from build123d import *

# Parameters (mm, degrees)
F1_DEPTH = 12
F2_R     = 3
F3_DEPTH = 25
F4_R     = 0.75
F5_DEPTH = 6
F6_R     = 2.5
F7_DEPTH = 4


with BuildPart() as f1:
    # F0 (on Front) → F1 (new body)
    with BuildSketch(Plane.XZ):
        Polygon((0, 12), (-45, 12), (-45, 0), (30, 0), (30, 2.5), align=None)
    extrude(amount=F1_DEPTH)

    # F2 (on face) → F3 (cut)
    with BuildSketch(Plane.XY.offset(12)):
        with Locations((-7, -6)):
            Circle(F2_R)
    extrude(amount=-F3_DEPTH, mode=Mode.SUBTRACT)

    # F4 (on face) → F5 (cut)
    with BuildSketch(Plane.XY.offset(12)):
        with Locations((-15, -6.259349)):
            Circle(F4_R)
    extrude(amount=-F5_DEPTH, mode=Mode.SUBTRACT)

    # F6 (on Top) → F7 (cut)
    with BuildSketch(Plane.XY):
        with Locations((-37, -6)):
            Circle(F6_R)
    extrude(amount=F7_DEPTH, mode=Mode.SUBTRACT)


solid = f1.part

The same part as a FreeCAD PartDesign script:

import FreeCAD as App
import Part
import Sketcher
from FreeCAD import Vector
Q = App.Units.Quantity


def add_polygon(sketch, points):
    """Adds a closed chain of lines whose ends are joined by coincident constraints."""
    first, n = sketch.GeometryCount, len(points)
    for a, b in zip(points, points[1:] + points[:1]):
        sketch.addGeometry(Part.LineSegment(App.Vector(*a, 0), App.Vector(*b, 0)), False)
    for i in range(n):
        sketch.addConstraint(Sketcher.Constraint("Coincident", first + i, 2, first + (i + 1) % n, 1))

doc = App.newDocument("Part")
body = doc.addObject("PartDesign::Body", "Body")

sketch1 = doc.addObject("Sketcher::SketchObject", "Sketch")
body.addObject(sketch1)
sketch1.AttachmentSupport = (doc.XZ_Plane, [""])
sketch1.MapMode = "FlatFace"
add_polygon(sketch1, [(0, 12), (-45, 12), (-45, 0), (30, 0), (30, 2.5)])
sketch1.addConstraint(Sketcher.Constraint("Horizontal", 0))
sketch1.addConstraint(Sketcher.Constraint("Vertical", 1))
sketch1.addConstraint(Sketcher.Constraint("Horizontal", 2))
sketch1.addConstraint(Sketcher.Constraint("Vertical", 3))
sketch1.addConstraint(Sketcher.Constraint("PointOnObject", 1, 2, -1))
sketch1.addConstraint(Sketcher.Constraint("PointOnObject", 4, 2, -2))
sketch1.addConstraint(Sketcher.Constraint("DistanceX", 0, 2, 0, 1, Q("45 mm")))
sketch1.addConstraint(Sketcher.Constraint("DistanceX", 2, 1, 2, 2, Q("75 mm")))
sketch1.addConstraint(Sketcher.Constraint("DistanceY", 1, 2, 1, 1, Q("12 mm")))
sketch1.addConstraint(Sketcher.Constraint("DistanceY", 3, 1, 3, 2, Q("2.5 mm")))
pad1 = doc.addObject("PartDesign::Pad", "Pad")
body.addObject(pad1)
pad1.Profile = sketch1
pad1.Length = 12

sketch2 = doc.addObject("Sketcher::SketchObject", "Sketch001")
body.addObject(sketch2)
sketch2.AttachmentSupport = (doc.XY_Plane, [""])
sketch2.MapMode = "FlatFace"
sketch2.AttachmentOffset = App.Placement(Vector(0, 0, 12), App.Rotation())
sketch2.addGeometry(Part.Circle(Vector(-7, -6, 0), Vector(0, 0, 1), 3), False)
sketch2.addConstraint(Sketcher.Constraint("Diameter", 0, Q("6 mm")))
sketch2.addConstraint(Sketcher.Constraint("DistanceX", 0, 3, -1, 1, Q("7 mm")))
sketch2.addConstraint(Sketcher.Constraint("DistanceY", 0, 3, -1, 1, Q("6 mm")))
pocket1 = doc.addObject("PartDesign::Pocket", "Pocket")
body.addObject(pocket1)
pocket1.Profile = sketch2
pocket1.Length = 25

sketch3 = doc.addObject("Sketcher::SketchObject", "Sketch002")
body.addObject(sketch3)
sketch3.AttachmentSupport = (doc.XY_Plane, [""])
sketch3.MapMode = "FlatFace"
sketch3.AttachmentOffset = App.Placement(Vector(0, 0, 12), App.Rotation())
sketch3.addGeometry(Part.Circle(Vector(-15, -6.3, 0), Vector(0, 0, 1), 0.8), False)
sketch3.addConstraint(Sketcher.Constraint("Diameter", 0, Q("1.5 mm")))
sketch3.addConstraint(Sketcher.Constraint("DistanceX", 0, 3, -1, 1, Q("15 mm")))
sketch3.addConstraint(Sketcher.Constraint("DistanceY", 0, 3, -1, 1, Q("6.259349 mm")))
pocket2 = doc.addObject("PartDesign::Pocket", "Pocket001")
body.addObject(pocket2)
pocket2.Profile = sketch3
pocket2.Length = 6

sketch4 = doc.addObject("Sketcher::SketchObject", "Sketch003")
body.addObject(sketch4)
sketch4.AttachmentSupport = (doc.XY_Plane, [""])
sketch4.MapMode = "FlatFace"
sketch4.addGeometry(Part.Circle(Vector(-37, -6, 0), Vector(0, 0, 1), 2.5), False)
sketch4.addConstraint(Sketcher.Constraint("Diameter", 0, Q("5 mm")))
sketch4.addConstraint(Sketcher.Constraint("DistanceX", 0, 3, -1, 1, Q("37 mm")))
sketch4.addConstraint(Sketcher.Constraint("DistanceY", 0, 3, -1, 1, Q("6 mm")))
pocket3 = doc.addObject("PartDesign::Pocket", "Pocket002")
body.addObject(pocket3)
pocket3.Profile = sketch4
pocket3.Length = 4
pocket3.Reversed = True

doc.recompute()
